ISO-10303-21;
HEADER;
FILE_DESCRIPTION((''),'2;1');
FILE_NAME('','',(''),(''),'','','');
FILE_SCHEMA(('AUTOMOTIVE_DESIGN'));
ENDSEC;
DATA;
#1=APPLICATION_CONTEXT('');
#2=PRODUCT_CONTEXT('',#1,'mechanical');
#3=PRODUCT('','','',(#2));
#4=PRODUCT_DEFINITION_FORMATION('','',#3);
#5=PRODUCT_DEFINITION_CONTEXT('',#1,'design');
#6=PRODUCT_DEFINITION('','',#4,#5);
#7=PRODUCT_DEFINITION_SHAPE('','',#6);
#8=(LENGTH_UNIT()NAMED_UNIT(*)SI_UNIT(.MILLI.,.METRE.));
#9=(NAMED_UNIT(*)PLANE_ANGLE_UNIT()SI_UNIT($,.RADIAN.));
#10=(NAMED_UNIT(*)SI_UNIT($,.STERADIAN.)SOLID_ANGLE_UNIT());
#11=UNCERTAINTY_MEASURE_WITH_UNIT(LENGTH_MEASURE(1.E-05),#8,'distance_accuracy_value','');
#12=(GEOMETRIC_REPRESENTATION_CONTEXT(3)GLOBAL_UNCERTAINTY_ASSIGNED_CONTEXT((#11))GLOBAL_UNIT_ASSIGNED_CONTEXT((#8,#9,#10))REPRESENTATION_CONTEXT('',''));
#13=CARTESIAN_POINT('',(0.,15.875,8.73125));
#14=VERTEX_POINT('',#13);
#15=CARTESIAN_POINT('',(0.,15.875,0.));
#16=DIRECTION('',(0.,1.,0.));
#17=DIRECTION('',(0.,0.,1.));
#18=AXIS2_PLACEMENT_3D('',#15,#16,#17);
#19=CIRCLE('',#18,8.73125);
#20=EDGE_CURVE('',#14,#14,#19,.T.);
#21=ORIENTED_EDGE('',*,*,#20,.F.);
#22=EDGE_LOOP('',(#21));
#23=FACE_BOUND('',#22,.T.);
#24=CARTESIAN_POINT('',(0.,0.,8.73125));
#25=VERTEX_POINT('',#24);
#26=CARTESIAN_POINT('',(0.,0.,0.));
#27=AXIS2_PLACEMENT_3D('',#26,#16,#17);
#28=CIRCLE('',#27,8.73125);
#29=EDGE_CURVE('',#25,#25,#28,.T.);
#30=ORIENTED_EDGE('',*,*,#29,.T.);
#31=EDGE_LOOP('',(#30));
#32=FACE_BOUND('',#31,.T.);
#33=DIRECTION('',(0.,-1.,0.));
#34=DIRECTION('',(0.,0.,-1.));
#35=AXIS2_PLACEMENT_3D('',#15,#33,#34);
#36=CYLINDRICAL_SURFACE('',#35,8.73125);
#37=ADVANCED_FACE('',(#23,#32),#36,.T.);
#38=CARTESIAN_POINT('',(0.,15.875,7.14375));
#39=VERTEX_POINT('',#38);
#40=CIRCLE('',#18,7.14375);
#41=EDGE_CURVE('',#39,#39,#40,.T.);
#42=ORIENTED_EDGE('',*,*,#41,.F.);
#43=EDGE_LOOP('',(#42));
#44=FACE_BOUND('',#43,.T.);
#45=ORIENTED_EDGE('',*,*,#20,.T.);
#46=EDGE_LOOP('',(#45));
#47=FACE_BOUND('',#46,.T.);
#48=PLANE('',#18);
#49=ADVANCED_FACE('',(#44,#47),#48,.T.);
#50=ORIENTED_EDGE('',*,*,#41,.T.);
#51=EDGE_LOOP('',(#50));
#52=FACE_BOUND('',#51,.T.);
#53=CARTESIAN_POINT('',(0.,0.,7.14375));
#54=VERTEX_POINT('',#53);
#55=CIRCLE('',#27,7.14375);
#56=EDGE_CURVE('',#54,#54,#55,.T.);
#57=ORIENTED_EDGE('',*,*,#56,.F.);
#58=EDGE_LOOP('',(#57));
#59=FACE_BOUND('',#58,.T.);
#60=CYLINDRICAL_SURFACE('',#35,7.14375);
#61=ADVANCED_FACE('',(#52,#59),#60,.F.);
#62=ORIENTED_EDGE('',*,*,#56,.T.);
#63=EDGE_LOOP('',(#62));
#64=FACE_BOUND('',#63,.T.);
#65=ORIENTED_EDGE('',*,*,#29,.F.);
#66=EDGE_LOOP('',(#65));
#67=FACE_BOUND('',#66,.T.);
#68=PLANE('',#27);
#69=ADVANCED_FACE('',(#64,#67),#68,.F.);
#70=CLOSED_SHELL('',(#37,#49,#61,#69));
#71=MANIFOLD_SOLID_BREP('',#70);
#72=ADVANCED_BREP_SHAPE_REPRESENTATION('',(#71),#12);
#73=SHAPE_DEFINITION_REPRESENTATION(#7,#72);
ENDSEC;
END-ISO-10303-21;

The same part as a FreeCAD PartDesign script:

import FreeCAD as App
import Part
import Sketcher

V = App.Vector
Q = App.Units.Quantity

doc = App.newDocument("Part")
params = doc.addObject("Spreadsheet::Sheet", "Params")
for row, (alias, value) in enumerate([
    ("sketch1_diameter", "0.6875 in"),
    ("sketch1_diameter2", "0.5625 in"),
    ("pad1_length", "0.625 in"),
], start=1):
    params.set(f"A{row}", alias)
    params.set(f"B{row}", "=" + value)
    params.setAlias(f"B{row}", alias)

body = doc.addObject("PartDesign::Body", "Body")

sketch1 = doc.addObject("Sketcher::SketchObject", "Sketch")
body.addObject(sketch1)
sketch1.AttachmentSupport = (doc.XZ_Plane, [""])
sketch1.MapMode = "FlatFace"
sketch1.addGeometry([
    Part.Circle(V(0, 0, 0), V(0, 0, 1), 9),
    Part.Circle(V(0, 0, 0), V(0, 0, 1), 7),
], False)
sketch1.addConstraint([
    Sketcher.Constraint("Coincident", 0, 3, -1, 1),
    Sketcher.Constraint("Coincident", 1, 3, -1, 1),
    Sketcher.Constraint("Diameter", 0, Q("0.6875 in")),
    Sketcher.Constraint("Diameter", 1, Q("0.5625 in")),
])
sketch1.setExpression("Constraints[2]", "Params.sketch1_diameter")
sketch1.setExpression("Constraints[3]", "Params.sketch1_diameter2")
pad1 = doc.addObject("PartDesign::Pad", "Pad")
body.addObject(pad1)
pad1.Profile = sketch1
pad1.setExpression("Length", "Params.pad1_length")
pad1.Reversed = True

doc.recompute()
